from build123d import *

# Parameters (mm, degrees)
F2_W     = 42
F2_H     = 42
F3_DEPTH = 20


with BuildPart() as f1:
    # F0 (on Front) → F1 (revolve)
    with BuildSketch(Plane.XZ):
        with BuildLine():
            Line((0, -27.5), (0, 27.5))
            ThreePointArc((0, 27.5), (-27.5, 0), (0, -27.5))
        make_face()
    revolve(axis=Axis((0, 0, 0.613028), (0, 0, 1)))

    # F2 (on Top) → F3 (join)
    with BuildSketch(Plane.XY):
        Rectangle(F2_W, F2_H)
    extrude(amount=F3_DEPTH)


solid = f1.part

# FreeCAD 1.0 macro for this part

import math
import FreeCAD as App
import Part
import Sketcher

doc = App.newDocument("Part")
body = doc.addObject("PartDesign::Body", "Body")

sketch1 = doc.addObject("Sketcher::SketchObject", "Sketch")
body.addObject(sketch1)
sketch1.AttachmentSupport = (doc.XZ_Plane, [""])
sketch1.MapMode = "FlatFace"
sketch1.addGeometry(Part.LineSegment(App.Vector(0, -27.5, 0), App.Vector(0, 27.5, 0)), False)
sketch1.addGeometry(Part.ArcOfCircle(Part.Circle(App.Vector(0, 0, 0), App.Vector(0, 0, 1), 27.5), math.radians(90), math.radians(270)), False)
sketch1.addConstraint(Sketcher.Constraint("Coincident", 0, 1, 1, 2))
sketch1.addConstraint(Sketcher.Constraint("Coincident", 1, 1, 0, 2))
sketch1.addConstraint(Sketcher.Constraint("Vertical", 0))
sketch1.addConstraint(Sketcher.Constraint("Coincident", 1, 3, -1, 1))
sketch1.addConstraint(Sketcher.Constraint("PointOnObject", 0, 1, -2))
sketch1.addConstraint(Sketcher.Constraint("Radius", 1, 27.5))
revolution = doc.addObject("PartDesign::Revolution", "Revolution")
body.addObject(revolution)
revolution.Profile = sketch1
revolution.ReferenceAxis = (sketch1, ["V_Axis"])
revolution.Angle = 360

sketch2 = doc.addObject("Sketcher::SketchObject", "Sketch001")
body.addObject(sketch2)
sketch2.AttachmentSupport = (doc.XY_Plane, [""])
sketch2.MapMode = "FlatFace"
sketch2.addGeometry(Part.LineSegment(App.Vector(-21, 21, 0), App.Vector(-21, -21, 0)), False)
sketch2.addGeometry(Part.LineSegment(App.Vector(-21, -21, 0), App.Vector(21, -21, 0)), False)
sketch2.addGeometry(Part.LineSegment(App.Vector(21, -21, 0), App.Vector(21, 21, 0)), False)
sketch2.addGeometry(Part.LineSegment(App.Vector(21, 21, 0), App.Vector(-21, 21, 0)), False)
sketch2.addConstraint(Sketcher.Constraint("Coincident", 0, 2, 1, 1))
sketch2.addConstraint(Sketcher.Constraint("Coincident", 1, 2, 2, 1))
sketch2.addConstraint(Sketcher.Constraint("Coincident", 2, 2, 3, 1))
sketch2.addConstraint(Sketcher.Constraint("Coincident", 3, 2, 0, 1))
sketch2.addConstraint(Sketcher.Constraint("Vertical", 0))
sketch2.addConstraint(Sketcher.Constraint("Horizontal", 1))
sketch2.addConstraint(Sketcher.Constraint("Vertical", 2))
sketch2.addConstraint(Sketcher.Constraint("Horizontal", 3))
sketch2.addConstraint(Sketcher.Constraint("Symmetric", 0, 2, 2, 2, -1, 1))
sketch2.addConstraint(Sketcher.Constraint("Equal", 3, 0))
sketch2.addConstraint(Sketcher.Constraint("DistanceX", 1, 1, 1, 2, 42.0))
pad1 = doc.addObject("PartDesign::Pad", "Pad")
body.addObject(pad1)
pad1.Profile = sketch2
pad1.Length = 20

doc.recompute()
